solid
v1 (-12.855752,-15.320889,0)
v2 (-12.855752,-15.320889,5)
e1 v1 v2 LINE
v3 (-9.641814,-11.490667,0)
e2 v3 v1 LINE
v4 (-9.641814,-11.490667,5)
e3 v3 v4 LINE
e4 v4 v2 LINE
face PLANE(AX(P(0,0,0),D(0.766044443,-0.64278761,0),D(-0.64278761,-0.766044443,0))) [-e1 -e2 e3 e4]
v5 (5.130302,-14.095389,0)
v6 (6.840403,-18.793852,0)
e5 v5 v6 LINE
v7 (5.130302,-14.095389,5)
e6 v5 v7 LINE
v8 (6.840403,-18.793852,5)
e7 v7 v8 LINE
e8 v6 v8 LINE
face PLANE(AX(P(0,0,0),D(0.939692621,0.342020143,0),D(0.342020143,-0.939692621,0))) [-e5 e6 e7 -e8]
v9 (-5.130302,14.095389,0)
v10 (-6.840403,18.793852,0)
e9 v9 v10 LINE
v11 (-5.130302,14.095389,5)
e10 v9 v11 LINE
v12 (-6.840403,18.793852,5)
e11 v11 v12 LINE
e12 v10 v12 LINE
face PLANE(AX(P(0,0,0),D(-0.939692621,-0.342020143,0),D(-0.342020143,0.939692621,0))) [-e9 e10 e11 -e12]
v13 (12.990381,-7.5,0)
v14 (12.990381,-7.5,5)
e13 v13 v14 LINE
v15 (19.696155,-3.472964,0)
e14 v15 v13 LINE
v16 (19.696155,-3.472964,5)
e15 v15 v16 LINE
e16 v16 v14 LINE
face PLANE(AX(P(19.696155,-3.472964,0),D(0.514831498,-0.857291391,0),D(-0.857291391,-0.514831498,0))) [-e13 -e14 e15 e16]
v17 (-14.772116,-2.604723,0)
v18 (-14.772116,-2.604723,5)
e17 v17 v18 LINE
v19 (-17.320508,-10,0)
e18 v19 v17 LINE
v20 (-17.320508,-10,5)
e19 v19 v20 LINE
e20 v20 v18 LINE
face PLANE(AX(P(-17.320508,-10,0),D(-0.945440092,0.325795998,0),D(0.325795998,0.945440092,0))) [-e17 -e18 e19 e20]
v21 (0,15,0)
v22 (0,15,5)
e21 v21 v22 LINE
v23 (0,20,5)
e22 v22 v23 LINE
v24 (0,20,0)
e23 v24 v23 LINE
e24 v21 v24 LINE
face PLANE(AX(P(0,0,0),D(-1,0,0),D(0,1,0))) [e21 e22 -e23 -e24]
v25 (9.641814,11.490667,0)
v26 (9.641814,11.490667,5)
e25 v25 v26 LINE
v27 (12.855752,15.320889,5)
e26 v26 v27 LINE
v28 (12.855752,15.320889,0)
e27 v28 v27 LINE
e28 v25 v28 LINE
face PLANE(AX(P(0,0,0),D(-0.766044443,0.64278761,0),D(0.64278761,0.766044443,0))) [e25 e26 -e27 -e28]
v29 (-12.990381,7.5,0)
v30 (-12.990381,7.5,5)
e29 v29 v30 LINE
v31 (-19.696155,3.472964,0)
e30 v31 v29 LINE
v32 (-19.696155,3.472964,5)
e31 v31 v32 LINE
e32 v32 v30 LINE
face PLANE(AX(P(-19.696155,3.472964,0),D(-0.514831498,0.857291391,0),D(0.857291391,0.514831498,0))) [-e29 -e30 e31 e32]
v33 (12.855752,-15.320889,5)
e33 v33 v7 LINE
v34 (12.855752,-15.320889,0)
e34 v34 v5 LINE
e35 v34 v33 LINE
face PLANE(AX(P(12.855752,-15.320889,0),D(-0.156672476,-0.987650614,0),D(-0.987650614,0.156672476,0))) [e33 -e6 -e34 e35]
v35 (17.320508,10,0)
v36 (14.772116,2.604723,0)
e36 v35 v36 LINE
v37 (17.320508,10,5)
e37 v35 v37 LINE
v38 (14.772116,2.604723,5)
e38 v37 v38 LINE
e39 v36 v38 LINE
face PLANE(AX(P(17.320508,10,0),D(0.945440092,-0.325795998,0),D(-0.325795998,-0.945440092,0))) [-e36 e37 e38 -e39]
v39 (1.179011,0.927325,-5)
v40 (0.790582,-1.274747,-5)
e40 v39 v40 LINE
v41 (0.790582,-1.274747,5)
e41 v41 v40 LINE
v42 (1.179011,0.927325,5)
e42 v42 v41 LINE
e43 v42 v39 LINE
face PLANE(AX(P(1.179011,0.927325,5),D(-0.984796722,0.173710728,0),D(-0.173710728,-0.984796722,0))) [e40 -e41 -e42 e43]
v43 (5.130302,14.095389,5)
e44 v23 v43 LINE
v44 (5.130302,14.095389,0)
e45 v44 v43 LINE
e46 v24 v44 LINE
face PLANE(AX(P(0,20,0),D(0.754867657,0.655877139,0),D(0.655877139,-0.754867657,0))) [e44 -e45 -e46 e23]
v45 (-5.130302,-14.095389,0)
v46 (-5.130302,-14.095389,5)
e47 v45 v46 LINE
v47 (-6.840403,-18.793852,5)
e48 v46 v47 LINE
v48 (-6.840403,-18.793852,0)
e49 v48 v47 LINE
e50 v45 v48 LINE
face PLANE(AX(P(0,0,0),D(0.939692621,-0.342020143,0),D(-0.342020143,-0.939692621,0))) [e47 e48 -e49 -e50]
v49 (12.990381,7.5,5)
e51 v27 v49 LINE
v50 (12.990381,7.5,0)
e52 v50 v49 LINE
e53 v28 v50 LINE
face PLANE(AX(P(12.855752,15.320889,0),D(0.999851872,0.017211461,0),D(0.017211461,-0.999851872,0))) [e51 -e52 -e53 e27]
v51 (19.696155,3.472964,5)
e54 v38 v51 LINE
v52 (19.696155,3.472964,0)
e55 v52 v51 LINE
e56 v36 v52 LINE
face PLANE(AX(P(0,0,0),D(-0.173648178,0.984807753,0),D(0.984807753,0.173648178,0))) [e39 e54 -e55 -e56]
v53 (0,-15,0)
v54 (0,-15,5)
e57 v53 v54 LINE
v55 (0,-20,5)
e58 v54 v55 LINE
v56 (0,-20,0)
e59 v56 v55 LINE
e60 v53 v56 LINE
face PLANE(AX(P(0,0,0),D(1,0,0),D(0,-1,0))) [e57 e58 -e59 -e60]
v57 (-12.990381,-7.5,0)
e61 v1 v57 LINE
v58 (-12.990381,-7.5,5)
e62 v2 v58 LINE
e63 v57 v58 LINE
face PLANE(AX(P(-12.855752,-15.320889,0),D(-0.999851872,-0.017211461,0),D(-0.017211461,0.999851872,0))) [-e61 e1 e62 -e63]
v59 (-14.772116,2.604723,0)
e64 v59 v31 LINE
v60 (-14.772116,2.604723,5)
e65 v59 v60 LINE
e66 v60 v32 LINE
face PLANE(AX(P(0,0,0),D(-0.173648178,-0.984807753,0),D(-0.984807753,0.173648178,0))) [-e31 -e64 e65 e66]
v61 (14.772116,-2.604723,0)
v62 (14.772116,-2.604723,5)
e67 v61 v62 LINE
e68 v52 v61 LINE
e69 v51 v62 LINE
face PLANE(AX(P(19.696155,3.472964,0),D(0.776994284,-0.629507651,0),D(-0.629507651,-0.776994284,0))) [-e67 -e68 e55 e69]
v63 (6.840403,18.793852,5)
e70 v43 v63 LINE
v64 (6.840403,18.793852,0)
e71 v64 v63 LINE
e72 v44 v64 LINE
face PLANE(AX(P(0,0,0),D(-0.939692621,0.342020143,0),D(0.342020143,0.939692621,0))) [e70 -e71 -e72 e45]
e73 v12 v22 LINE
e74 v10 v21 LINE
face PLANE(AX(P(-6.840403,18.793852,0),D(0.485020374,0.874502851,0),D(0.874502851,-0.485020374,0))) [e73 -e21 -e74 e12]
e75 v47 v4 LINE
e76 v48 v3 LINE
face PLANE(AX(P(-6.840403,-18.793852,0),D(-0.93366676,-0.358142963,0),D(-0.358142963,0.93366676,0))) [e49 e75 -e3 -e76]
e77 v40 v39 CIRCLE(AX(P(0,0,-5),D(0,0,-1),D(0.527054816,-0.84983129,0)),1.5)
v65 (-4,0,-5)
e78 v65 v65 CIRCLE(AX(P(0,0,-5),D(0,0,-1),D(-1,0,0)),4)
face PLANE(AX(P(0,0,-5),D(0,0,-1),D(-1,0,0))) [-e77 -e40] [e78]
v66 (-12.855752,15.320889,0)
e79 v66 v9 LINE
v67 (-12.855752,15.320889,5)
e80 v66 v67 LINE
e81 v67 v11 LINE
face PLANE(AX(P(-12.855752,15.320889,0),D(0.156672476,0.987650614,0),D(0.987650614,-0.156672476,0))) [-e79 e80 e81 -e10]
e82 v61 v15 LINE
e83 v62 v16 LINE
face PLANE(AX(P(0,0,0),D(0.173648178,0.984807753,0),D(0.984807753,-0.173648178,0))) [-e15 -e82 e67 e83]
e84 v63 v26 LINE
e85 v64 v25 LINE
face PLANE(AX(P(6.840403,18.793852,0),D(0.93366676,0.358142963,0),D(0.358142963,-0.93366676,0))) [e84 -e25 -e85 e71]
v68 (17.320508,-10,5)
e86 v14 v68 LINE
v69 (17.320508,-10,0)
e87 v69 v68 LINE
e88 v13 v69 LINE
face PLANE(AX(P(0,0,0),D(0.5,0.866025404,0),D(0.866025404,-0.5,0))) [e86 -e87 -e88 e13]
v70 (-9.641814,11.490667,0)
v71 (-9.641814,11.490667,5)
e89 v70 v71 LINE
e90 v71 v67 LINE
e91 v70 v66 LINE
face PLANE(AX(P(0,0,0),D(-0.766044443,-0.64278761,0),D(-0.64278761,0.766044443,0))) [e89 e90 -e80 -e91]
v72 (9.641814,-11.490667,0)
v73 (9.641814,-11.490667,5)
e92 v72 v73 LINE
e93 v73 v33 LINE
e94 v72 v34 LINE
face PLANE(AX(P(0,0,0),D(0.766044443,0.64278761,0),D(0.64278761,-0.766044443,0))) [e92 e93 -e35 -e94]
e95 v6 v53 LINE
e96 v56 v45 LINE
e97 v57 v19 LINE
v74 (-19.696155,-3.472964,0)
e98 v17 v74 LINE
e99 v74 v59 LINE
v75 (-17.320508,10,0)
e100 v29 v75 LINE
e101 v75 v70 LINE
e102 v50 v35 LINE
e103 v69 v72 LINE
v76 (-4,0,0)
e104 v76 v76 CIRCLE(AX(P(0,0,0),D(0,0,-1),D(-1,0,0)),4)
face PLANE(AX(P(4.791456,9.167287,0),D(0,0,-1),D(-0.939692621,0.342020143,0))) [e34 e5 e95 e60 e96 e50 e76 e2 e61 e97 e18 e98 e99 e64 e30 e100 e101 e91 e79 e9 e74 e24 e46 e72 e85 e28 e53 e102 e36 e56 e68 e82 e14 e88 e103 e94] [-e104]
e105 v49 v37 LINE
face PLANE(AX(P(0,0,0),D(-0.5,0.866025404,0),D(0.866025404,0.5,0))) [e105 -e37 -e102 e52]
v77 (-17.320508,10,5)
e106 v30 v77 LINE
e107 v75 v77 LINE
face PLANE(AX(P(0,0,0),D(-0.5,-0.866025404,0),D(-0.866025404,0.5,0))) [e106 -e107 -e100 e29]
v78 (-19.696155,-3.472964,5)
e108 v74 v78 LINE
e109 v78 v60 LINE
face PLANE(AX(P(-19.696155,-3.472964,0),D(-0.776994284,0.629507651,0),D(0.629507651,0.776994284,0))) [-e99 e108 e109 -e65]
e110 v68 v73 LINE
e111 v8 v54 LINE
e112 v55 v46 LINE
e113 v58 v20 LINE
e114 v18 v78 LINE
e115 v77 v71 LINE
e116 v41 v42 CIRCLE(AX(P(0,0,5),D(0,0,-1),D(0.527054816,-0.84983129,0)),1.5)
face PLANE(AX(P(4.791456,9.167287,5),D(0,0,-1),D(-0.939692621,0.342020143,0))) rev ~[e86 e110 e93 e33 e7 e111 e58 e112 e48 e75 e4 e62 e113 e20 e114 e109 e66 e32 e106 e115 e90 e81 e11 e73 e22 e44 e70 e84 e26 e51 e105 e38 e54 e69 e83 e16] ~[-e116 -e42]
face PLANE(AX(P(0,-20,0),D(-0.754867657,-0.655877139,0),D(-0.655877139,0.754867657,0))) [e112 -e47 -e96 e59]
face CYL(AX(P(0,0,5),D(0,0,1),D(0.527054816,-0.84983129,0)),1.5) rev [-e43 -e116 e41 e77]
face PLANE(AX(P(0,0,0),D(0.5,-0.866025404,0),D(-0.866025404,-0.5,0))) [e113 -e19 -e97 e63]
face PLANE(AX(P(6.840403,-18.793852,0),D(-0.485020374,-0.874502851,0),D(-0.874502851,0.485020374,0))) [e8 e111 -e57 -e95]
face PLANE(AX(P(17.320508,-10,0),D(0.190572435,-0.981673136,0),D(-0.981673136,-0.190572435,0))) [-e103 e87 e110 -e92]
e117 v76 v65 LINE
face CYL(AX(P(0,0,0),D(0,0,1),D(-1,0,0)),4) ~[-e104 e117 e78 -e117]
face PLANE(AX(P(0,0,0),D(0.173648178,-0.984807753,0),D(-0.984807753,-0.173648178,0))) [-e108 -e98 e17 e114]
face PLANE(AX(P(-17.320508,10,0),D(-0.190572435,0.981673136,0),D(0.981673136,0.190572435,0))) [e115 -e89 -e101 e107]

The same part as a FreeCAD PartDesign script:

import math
import FreeCAD as App
import Part
import Sketcher

V = App.Vector
Q = App.Units.Quantity


def add_polygon(sketch, points):
    """Adds a closed chain of lines whose ends are joined by coincident constraints."""
    first, n = sketch.GeometryCount, len(points)
    for a, b in zip(points, points[1:] + points[:1]):
        sketch.addGeometry(Part.LineSegment(App.Vector(*a, 0), App.Vector(*b, 0)), False)
    for i in range(n):
        sketch.addConstraint(Sketcher.Constraint("Coincident", first + i, 2, first + (i + 1) % n, 1))

doc = App.newDocument("Part")
body = doc.addObject("PartDesign::Body", "Body")

# Sketch on XY plane
sketch1 = body.newObject("Sketcher::SketchObject", "Sketch")
sketch1.AttachmentSupport = (doc.getObject("XY_Plane"), [""])
sketch1.MapMode = "FlatFace"
add_polygon(sketch1, [(0, 20), (0, 0), (5.130302, 14.095389)])  # lines 0-2
sketch1.addConstraint([
    Sketcher.Constraint("Vertical", 0),
    Sketcher.Constraint("Coincident", 0, 2, -1, 1),
    Sketcher.Constraint("DistanceY", 0, 2, 0, 1, Q("20 mm")),
    Sketcher.Constraint("Angle", 1, Q("70 deg")),
    Sketcher.Constraint("Distance", 1, Q("15 mm")),
])
pad1 = body.newObject("PartDesign::Pad", "Pad")
pad1.Profile = sketch1
pad1.Length = 5
doc.recompute()

polarpattern = body.newObject("PartDesign::PolarPattern", "PolarPattern")
polarpattern.Originals = [pad1]
polarpattern.Axis = (doc.getObject("Z_Axis"), [""])
polarpattern.Angle = 360
polarpattern.Occurrences = 18
body.Tip = polarpattern

# Sketch on XY plane
sketch2 = body.newObject("Sketcher::SketchObject", "Sketch001")
sketch2.AttachmentSupport = (doc.getObject("XY_Plane"), [""])
sketch2.MapMode = "FlatFace"
sketch2.addGeometry(Part.Circle(V(0, 0, 0), V(0, 0, 1), 4), False)
sketch2.addConstraint([
    Sketcher.Constraint("Coincident", 0, 3, -1, 1),
    Sketcher.Constraint("Diameter", 0, Q("8 mm")),
])
pad2 = body.newObject("PartDesign::Pad", "Pad001")
pad2.Profile = sketch2
pad2.Length = 5
pad2.Reversed = True

# Sketch on XY plane
sketch3 = body.newObject("Sketcher::SketchObject", "Sketch002")
sketch3.AttachmentSupport = (doc.getObject("XY_Plane"), [""])
sketch3.MapMode = "FlatFace"
sketch3.AttachmentOffset = App.Placement(V(0, 0, 5), App.Rotation())
sketch3.addGeometry([
    Part.LineSegment(V(0.790582, -1.274747, 0), V(1.179011, 0.927325, 0)),
    Part.ArcOfCircle(Part.Circle(V(0, 0, 0), V(0, 0, 1), 1.5), math.radians(38.186046), math.radians(301.806676)),
], False)
sketch3.addConstraint([
    Sketcher.Constraint("Coincident", 0, 1, 1, 2),
    Sketcher.Constraint("Coincident", 1, 1, 0, 2),
    Sketcher.Constraint("Coincident", 1, 3, -1, 1),
    Sketcher.Constraint("Radius", 1, Q("1.5 mm")),
    Sketcher.Constraint("DistanceX", -1, 1, 1, 1, Q("1.179011 mm")),
    Sketcher.Constraint("DistanceX", 0, 1, 1, 1, Q("0.388429 mm")),
])
pocket1 = body.newObject("PartDesign::Pocket", "Pocket")
pocket1.Profile = sketch3
pocket1.Length = 10

doc.recompute()
